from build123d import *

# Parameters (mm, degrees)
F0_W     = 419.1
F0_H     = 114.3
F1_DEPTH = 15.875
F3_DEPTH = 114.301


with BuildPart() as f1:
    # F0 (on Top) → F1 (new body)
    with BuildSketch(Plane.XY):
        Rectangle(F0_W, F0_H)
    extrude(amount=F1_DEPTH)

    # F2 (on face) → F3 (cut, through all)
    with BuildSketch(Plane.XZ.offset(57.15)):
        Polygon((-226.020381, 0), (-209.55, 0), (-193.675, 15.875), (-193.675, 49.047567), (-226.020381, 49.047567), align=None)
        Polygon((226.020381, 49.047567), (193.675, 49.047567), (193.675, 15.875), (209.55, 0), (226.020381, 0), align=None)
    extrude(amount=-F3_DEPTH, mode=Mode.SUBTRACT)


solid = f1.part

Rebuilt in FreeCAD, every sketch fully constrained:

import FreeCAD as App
import Part
import Sketcher

V = App.Vector
Q = App.Units.Quantity


def add_polygon(sketch, points):
    """Adds a closed chain of lines whose ends are joined by coincident constraints."""
    first, n = sketch.GeometryCount, len(points)
    for a, b in zip(points, points[1:] + points[:1]):
        sketch.addGeometry(Part.LineSegment(App.Vector(*a, 0), App.Vector(*b, 0)), False)
    for i in range(n):
        sketch.addConstraint(Sketcher.Constraint("Coincident", first + i, 2, first + (i + 1) % n, 1))

doc = App.newDocument("Part")
body = doc.addObject("PartDesign::Body", "Body")

# Sketch on XY plane
sketch1 = body.newObject("Sketcher::SketchObject", "Sketch")
sketch1.AttachmentSupport = (doc.getObject("XY_Plane"), [""])
sketch1.MapMode = "FlatFace"
add_polygon(sketch1, [(-210, 57), (-210, -57), (210, -57), (210, 57)])  # lines 0-3
sketch1.addConstraint(Sketcher.Constraint("Vertical", 0))
sketch1.addConstraint(Sketcher.Constraint("Horizontal", 1))
sketch1.addConstraint(Sketcher.Constraint("Vertical", 2))
sketch1.addConstraint(Sketcher.Constraint("Horizontal", 3))
sketch1.addConstraint(Sketcher.Constraint("Symmetric", 0, 2, 2, 2, -1, 1))
sketch1.addConstraint(Sketcher.Constraint("DistanceX", 1, 1, 1, 2, Q("16.5 in")))
sketch1.addConstraint(Sketcher.Constraint("DistanceY", 0, 2, 0, 1, Q("4.5 in")))
pad1 = body.newObject("PartDesign::Pad", "Pad")
pad1.Profile = sketch1
pad1.Length = Q("0.625 in")

# Sketch on XZ plane
sketch2 = body.newObject("Sketcher::SketchObject", "Sketch001")
sketch2.AttachmentSupport = (doc.getObject("XZ_Plane"), [""])
sketch2.MapMode = "FlatFace"
sketch2.AttachmentOffset = App.Placement(V(0, 0, 2.25 * 25.4), App.Rotation())
add_polygon(sketch2, [(-226, 0), (-210, 0), (-194, 16), (-194, 49), (-226, 49)])  # lines 0-4
add_polygon(sketch2, [(226, 49), (194, 49), (194, 16), (210, 0), (226, 0)])  # lines 5-9
sketch2.addConstraint(Sketcher.Constraint("Horizontal", 0))
sketch2.addConstraint(Sketcher.Constraint("Vertical", 2))
sketch2.addConstraint(Sketcher.Constraint("Horizontal", 3))
sketch2.addConstraint(Sketcher.Constraint("Vertical", 4))
sketch2.addConstraint(Sketcher.Constraint("Horizontal", 5))
sketch2.addConstraint(Sketcher.Constraint("Vertical", 6))
sketch2.addConstraint(Sketcher.Constraint("Horizontal", 8))
sketch2.addConstraint(Sketcher.Constraint("Vertical", 9))
sketch2.addConstraint(Sketcher.Constraint("Symmetric", 0, 2, 7, 2, -1, 1))
sketch2.addConstraint(Sketcher.Constraint("Symmetric", 2, 2, 5, 2, -2))
sketch2.addConstraint(Sketcher.Constraint("Symmetric", 4, 2, 8, 2, -2))
sketch2.addConstraint(Sketcher.Constraint("Perpendicular", 1, 7))
sketch2.addConstraint(Sketcher.Constraint("Horizontal", 1, 2, 6, 2))
sketch2.addConstraint(Sketcher.Constraint("DistanceX", 0, 2, 7, 2, Q("16.5 in")))
sketch2.addConstraint(Sketcher.Constraint("DistanceX", 2, 2, 5, 2, Q("15.25 in")))
sketch2.addConstraint(Sketcher.Constraint("DistanceX", 0, 1, 0, 2, Q("16.470381 mm")))
sketch2.addConstraint(Sketcher.Constraint("DistanceY", 2, 1, 2, 2, Q("33.172567 mm")))
pocket1 = body.newObject("PartDesign::Pocket", "Pocket")
pocket1.Profile = sketch2
pocket1.Type = "ThroughAll"

doc.recompute()
